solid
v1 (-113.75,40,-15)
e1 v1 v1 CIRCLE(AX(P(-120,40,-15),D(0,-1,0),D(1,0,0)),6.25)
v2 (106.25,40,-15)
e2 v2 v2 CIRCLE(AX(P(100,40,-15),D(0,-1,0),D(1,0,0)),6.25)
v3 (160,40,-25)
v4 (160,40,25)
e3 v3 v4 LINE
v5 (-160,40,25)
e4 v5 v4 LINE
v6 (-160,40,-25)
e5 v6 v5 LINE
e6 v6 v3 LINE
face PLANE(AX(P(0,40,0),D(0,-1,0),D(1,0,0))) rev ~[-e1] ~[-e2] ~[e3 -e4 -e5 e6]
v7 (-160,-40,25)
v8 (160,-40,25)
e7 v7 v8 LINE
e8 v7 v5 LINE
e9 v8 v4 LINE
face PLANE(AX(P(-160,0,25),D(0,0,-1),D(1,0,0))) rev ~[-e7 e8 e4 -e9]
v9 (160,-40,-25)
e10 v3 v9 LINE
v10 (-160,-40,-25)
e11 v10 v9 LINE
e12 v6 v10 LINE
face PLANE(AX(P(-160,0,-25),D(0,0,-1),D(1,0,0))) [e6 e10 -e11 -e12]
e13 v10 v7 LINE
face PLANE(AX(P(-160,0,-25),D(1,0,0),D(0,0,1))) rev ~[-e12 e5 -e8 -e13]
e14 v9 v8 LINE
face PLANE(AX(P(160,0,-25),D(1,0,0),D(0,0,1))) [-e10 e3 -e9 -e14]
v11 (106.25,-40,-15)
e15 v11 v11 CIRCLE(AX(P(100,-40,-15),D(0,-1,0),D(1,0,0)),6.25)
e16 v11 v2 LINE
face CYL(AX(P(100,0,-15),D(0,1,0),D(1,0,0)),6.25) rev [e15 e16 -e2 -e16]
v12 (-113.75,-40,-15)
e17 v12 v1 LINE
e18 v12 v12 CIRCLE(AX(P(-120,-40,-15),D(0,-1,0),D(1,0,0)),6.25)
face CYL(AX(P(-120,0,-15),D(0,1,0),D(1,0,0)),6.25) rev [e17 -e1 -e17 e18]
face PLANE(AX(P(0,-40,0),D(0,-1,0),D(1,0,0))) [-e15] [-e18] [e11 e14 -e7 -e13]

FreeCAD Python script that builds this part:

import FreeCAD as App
import Part
import Sketcher


def add_polygon(sketch, points):
    """Adds a closed chain of lines whose ends are joined by coincident constraints."""
    first, n = sketch.GeometryCount, len(points)
    for a, b in zip(points, points[1:] + points[:1]):
        sketch.addGeometry(Part.LineSegment(App.Vector(*a, 0), App.Vector(*b, 0)), False)
    for i in range(n):
        sketch.addConstraint(Sketcher.Constraint("Coincident", first + i, 2, first + (i + 1) % n, 1))

doc = App.newDocument("Part")
body = doc.addObject("PartDesign::Body", "Body")

# Sketch on XZ plane
sketch1 = body.newObject("Sketcher::SketchObject", "Sketch")
sketch1.AttachmentSupport = (doc.getObject("XZ_Plane"), [""])
sketch1.MapMode = "FlatFace"
add_polygon(sketch1, [(-160, 25), (-160, -25), (160, -25), (160, 25)])  # lines 0-3
sketch1.addGeometry(Part.Circle(App.Vector(-120, -15, 0), App.Vector(0, 0, 1), 6), False)  # 4
sketch1.addGeometry(Part.Circle(App.Vector(100, -15, 0), App.Vector(0, 0, 1), 6), False)  # 5
sketch1.addConstraint([
    Sketcher.Constraint("Vertical", 0),
    Sketcher.Constraint("Horizontal", 1),
    Sketcher.Constraint("Vertical", 2),
    Sketcher.Constraint("Horizontal", 3),
    Sketcher.Constraint("Equal", 4, 5),
    Sketcher.Constraint("Symmetric", 0, 2, 2, 2, -1, 1),
    Sketcher.Constraint("Horizontal", 4, 3, 5, 3),
    Sketcher.Constraint("Diameter", 4, 12.5),
    Sketcher.Constraint("DistanceX", 1, 1, 1, 2, 320.0),
    Sketcher.Constraint("DistanceY", 0, 2, 0, 1, 50.0),
    Sketcher.Constraint("DistanceX", 4, 3, -1, 1, 120.0),
    Sketcher.Constraint("DistanceY", 4, 3, -1, 1, 15.0),
    Sketcher.Constraint("DistanceX", -1, 1, 5, 3, 100.0),
])
pad1 = body.newObject("PartDesign::Pad", "Pad")
pad1.Profile = sketch1
pad1.Length = 80
pad1.Midplane = True

doc.recompute()
